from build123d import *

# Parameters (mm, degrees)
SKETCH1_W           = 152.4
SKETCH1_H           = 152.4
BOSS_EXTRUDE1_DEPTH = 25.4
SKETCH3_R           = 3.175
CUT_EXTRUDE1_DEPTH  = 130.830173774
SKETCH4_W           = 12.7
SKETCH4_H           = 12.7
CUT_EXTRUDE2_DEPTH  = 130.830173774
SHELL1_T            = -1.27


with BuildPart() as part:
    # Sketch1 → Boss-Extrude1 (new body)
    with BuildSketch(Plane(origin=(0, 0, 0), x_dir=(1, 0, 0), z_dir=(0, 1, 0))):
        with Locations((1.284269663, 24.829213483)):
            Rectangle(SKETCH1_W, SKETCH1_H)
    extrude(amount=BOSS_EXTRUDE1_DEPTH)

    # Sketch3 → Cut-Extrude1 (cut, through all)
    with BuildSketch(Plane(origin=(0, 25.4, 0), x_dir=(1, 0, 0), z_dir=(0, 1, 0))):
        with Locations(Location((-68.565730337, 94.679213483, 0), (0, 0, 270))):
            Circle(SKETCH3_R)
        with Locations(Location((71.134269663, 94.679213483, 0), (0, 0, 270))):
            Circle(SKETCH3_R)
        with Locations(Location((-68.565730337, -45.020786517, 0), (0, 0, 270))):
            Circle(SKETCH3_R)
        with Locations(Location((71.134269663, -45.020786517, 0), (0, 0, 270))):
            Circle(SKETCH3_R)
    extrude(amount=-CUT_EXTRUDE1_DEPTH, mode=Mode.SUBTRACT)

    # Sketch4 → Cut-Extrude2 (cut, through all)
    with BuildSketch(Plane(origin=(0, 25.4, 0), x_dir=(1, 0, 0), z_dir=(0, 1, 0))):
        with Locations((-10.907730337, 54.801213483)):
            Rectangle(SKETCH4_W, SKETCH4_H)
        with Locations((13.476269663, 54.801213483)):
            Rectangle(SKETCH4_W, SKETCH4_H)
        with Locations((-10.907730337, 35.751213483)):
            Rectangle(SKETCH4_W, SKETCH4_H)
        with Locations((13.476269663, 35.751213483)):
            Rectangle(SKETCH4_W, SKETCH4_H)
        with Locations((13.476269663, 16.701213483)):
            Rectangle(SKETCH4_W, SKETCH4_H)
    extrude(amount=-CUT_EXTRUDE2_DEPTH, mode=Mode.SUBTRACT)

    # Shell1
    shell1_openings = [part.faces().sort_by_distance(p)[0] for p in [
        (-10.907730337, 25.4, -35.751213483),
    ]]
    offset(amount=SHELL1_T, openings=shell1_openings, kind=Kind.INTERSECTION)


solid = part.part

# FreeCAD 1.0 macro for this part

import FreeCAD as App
import Part
import Sketcher
from FreeCAD import Vector
Q = App.Units.Quantity


def faces_at(feature, points):
    """Names of the faces that lie closest to the given points."""
    faces = feature.Shape.Faces
    near = lambda p: min(range(len(faces)), key=lambda i: faces[i].distToShape(Part.Vertex(*p))[0])
    return sorted({f"Face{near(p) + 1}" for p in points})


def add_polygon(sketch, points):
    """Adds a closed chain of lines whose ends are joined by coincident constraints."""
    first, n = sketch.GeometryCount, len(points)
    for a, b in zip(points, points[1:] + points[:1]):
        sketch.addGeometry(Part.LineSegment(App.Vector(*a, 0), App.Vector(*b, 0)), False)
    for i in range(n):
        sketch.addConstraint(Sketcher.Constraint("Coincident", first + i, 2, first + (i + 1) % n, 1))

doc = App.newDocument("Part")
body = doc.addObject("PartDesign::Body", "Body")

# Sketch on XZ plane
sketch1 = doc.addObject("Sketcher::SketchObject", "Sketch")
body.addObject(sketch1)
sketch1.AttachmentSupport = (doc.XZ_Plane, [""])
sketch1.MapMode = "FlatFace"
add_polygon(sketch1, [(-75, -101), (-75, 51), (77, 51), (77, -101)])  # lines 0-3
sketch1.addConstraint([
    Sketcher.Constraint("Vertical", 0),
    Sketcher.Constraint("Horizontal", 1),
    Sketcher.Constraint("Vertical", 2),
    Sketcher.Constraint("Horizontal", 3),
    Sketcher.Constraint("Equal", 3, 0),
    Sketcher.Constraint("DistanceX", 1, 1, 1, 2, Q("6 in")),
    Sketcher.Constraint("DistanceX", 0, 2, -1, 1, 74.91573),
    Sketcher.Constraint("DistanceY", -1, 1, 0, 2, 51.370787),
])
pad1 = doc.addObject("PartDesign::Pad", "Pad")
body.addObject(pad1)
pad1.Profile = sketch1
pad1.Length = Q("1 in")
pad1.Reversed = True

# Sketch on XZ plane
sketch2 = doc.addObject("Sketcher::SketchObject", "Sketch001")
body.addObject(sketch2)
sketch2.AttachmentSupport = (doc.XZ_Plane, [""])
sketch2.MapMode = "FlatFace"
sketch2.AttachmentOffset = App.Placement(Vector(0, 0, -1 * 25.4), App.Rotation())
sketch2.addGeometry([
    Part.Circle(Vector(-68.6, -94.7, 0), Vector(0, 0, 1), 3.2),
    Part.Circle(Vector(71.1, -94.7, 0), Vector(0, 0, 1), 3.2),
    Part.Circle(Vector(-68.6, 45, 0), Vector(0, 0, 1), 3.2),
    Part.Circle(Vector(71.1, 45, 0), Vector(0, 0, 1), 3.2),
], False)
sketch2.addConstraint([
    Sketcher.Constraint("Equal", 0, 1),
    Sketcher.Constraint("Equal", 1, 2),
    Sketcher.Constraint("Equal", 2, 3),
    Sketcher.Constraint("Horizontal", 0, 3, 1, 3),
    Sketcher.Constraint("Horizontal", 2, 3, 3, 3),
    Sketcher.Constraint("Vertical", 0, 3, 2, 3),
    Sketcher.Constraint("Vertical", 1, 3, 3, 3),
    Sketcher.Constraint("Diameter", 0, Q("0.25 in")),
    Sketcher.Constraint("DistanceX", 0, 3, 1, 3, Q("5.5 in")),
    Sketcher.Constraint("DistanceY", 0, 3, 2, 3, Q("5.5 in")),
    Sketcher.Constraint("DistanceX", 0, 3, -1, 1, 68.56573),
    Sketcher.Constraint("DistanceY", 0, 3, -1, 1, 94.679213),
])
pocket1 = doc.addObject("PartDesign::Pocket", "Pocket")
body.addObject(pocket1)
pocket1.Profile = sketch2
pocket1.Type = "ThroughAll"
pocket1.Reversed = True

# Sketch on XZ plane
sketch3 = doc.addObject("Sketcher::SketchObject", "Sketch002")
body.addObject(sketch3)
sketch3.AttachmentSupport = (doc.XZ_Plane, [""])
sketch3.MapMode = "FlatFace"
sketch3.AttachmentOffset = App.Placement(Vector(0, 0, -1 * 25.4), App.Rotation())
add_polygon(sketch3, [(-17, -61), (-17, -48), (-5, -48), (-5, -61)])  # lines 0-3
add_polygon(sketch3, [(7, -61), (7, -48), (20, -48), (20, -61)])  # lines 4-7
add_polygon(sketch3, [(-17, -42), (-17, -29), (-5, -29), (-5, -42)])  # lines 8-11
add_polygon(sketch3, [(7, -42), (7, -29), (20, -29), (20, -42)])  # lines 12-15
add_polygon(sketch3, [(7, -23), (7, -10), (20, -10), (20, -23)])  # lines 16-19
sketch3.addConstraint([
    Sketcher.Constraint("Vertical", 0),
    Sketcher.Constraint("Horizontal", 1),
    Sketcher.Constraint("Vertical", 2),
    Sketcher.Constraint("Horizontal", 3),
    Sketcher.Constraint("Vertical", 4),
    Sketcher.Constraint("Horizontal", 5),
    Sketcher.Constraint("Vertical", 6),
    Sketcher.Constraint("Horizontal", 7),
    Sketcher.Constraint("Vertical", 8),
    Sketcher.Constraint("Horizontal", 9),
    Sketcher.Constraint("Vertical", 10),
    Sketcher.Constraint("Horizontal", 11),
    Sketcher.Constraint("Vertical", 12),
    Sketcher.Constraint("Horizontal", 13),
    Sketcher.Constraint("Vertical", 14),
    Sketcher.Constraint("Horizontal", 15),
    Sketcher.Constraint("Vertical", 16),
    Sketcher.Constraint("Horizontal", 17),
    Sketcher.Constraint("Vertical", 18),
    Sketcher.Constraint("Horizontal", 19),
    Sketcher.Constraint("Horizontal", 1, 2, 4, 2),
    Sketcher.Constraint("Horizontal", 3, 2, 6, 2),
    Sketcher.Constraint("Horizontal", 9, 2, 12, 2),
    Sketcher.Constraint("Horizontal", 11, 2, 14, 2),
    Sketcher.Constraint("Vertical", 3, 2, 8, 2),
    Sketcher.Constraint("Vertical", 2, 2, 9, 2),
    Sketcher.Constraint("Vertical", 7, 2, 12, 2),
    Sketcher.Constraint("Vertical", 6, 2, 13, 2),
    Sketcher.Constraint("Vertical", 15, 2, 16, 2),
    Sketcher.Constraint("Vertical", 14, 2, 17, 2),
    Sketcher.Constraint("Equal", 3, 5),
    Sketcher.Constraint("Equal", 19, 0),
    Sketcher.Constraint("Equal", 6, 8),
    Sketcher.Constraint("Equal", 14, 16),
    Sketcher.Constraint("DistanceX", 1, 1, 1, 2, Q("0.5 in")),
    Sketcher.Constraint("DistanceX", 1, 2, 4, 2, Q("0.46 in")),
    Sketcher.Constraint("DistanceY", 0, 2, 8, 2, Q("0.75 in")),
    Sketcher.Constraint("DistanceY", 12, 2, 16, 2, Q("0.75 in")),
    Sketcher.Constraint("DistanceX", 0, 2, -1, 1, 17.25773),
    Sketcher.Constraint("DistanceY", 0, 2, -1, 1, 48.451213),
])
pocket2 = doc.addObject("PartDesign::Pocket", "Pocket001")
body.addObject(pocket2)
pocket2.Profile = sketch3
pocket2.Type = "ThroughAll"
pocket2.Reversed = True
doc.recompute()

thickness = doc.addObject("PartDesign::Thickness", "Thickness")
body.addObject(thickness)
thickness.Base = (pocket2, faces_at(pocket2, [(1.284, 25.4, -24.829)]))
thickness.Value = Q("0.05 in")
thickness.Reversed = True
thickness.Join = "Intersection"

doc.recompute()
